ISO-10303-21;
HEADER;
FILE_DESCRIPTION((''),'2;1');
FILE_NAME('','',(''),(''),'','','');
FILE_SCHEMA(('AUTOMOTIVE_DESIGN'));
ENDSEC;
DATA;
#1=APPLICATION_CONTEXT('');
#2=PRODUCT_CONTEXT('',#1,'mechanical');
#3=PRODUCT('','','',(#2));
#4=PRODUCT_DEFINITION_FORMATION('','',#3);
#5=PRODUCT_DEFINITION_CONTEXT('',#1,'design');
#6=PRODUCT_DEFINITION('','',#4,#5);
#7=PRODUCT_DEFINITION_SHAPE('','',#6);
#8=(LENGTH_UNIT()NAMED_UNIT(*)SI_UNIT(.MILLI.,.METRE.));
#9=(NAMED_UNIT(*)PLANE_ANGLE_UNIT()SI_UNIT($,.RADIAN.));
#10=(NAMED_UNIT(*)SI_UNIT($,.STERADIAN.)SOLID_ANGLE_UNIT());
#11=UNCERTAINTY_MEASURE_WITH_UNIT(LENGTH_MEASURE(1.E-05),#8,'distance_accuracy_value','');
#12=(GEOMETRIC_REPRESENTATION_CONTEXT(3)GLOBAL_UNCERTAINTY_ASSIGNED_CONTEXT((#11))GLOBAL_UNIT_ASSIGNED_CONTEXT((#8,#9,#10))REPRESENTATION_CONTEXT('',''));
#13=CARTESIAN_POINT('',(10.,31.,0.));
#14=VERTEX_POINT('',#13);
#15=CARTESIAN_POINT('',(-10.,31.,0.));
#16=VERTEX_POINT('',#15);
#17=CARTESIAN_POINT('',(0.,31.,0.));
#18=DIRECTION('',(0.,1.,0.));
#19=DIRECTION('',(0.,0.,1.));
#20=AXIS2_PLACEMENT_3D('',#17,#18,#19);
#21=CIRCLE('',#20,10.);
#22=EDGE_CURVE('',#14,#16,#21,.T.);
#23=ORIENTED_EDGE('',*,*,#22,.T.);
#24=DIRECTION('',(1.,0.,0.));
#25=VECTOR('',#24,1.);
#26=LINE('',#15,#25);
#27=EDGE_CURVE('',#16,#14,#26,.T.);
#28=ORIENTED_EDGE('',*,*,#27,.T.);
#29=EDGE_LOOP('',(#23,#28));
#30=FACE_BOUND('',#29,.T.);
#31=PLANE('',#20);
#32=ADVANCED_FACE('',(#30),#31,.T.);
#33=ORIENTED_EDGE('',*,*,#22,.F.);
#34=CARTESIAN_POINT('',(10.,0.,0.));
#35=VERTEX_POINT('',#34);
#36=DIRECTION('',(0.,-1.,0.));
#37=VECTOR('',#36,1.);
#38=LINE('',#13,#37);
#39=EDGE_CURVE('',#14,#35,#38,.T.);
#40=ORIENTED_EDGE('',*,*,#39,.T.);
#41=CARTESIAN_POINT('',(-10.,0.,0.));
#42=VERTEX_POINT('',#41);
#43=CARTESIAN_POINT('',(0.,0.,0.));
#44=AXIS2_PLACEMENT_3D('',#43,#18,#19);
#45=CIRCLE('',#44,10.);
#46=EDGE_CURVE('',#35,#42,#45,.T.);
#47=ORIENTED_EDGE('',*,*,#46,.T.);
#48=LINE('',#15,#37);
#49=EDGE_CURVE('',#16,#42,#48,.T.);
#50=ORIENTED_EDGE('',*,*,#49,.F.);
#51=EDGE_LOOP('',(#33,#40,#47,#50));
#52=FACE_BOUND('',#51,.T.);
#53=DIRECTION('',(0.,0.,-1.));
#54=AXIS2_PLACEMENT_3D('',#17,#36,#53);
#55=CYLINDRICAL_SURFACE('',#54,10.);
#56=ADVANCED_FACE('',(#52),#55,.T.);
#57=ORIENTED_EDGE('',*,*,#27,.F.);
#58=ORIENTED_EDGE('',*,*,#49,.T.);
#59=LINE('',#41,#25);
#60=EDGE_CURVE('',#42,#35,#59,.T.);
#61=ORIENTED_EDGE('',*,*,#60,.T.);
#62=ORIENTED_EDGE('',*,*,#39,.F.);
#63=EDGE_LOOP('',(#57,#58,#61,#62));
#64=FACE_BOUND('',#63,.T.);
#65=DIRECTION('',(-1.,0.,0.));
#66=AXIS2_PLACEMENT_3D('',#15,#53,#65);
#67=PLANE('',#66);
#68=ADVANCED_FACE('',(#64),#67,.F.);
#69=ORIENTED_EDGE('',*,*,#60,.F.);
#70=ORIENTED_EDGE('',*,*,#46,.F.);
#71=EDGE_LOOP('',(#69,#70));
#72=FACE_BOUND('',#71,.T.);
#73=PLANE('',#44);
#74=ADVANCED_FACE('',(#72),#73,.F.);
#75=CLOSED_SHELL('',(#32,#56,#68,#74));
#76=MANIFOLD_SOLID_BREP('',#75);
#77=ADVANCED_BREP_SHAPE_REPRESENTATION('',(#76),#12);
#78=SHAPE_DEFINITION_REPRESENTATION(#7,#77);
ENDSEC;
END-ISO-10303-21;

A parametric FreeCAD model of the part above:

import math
import FreeCAD as App
import Part
import Sketcher
Q = App.Units.Quantity

doc = App.newDocument("Part")
params = doc.addObject("Spreadsheet::Sheet", "Params")
for row, (alias, value) in enumerate([
    ("sketch1_radius", "10 mm"),
    ("pad1_length", "31 mm"),
], start=1):
    params.set(f"A{row}", alias)
    params.set(f"B{row}", "=" + value)
    params.setAlias(f"B{row}", alias)

body = doc.addObject("PartDesign::Body", "Body")

sketch1 = body.newObject("Sketcher::SketchObject", "Sketch")
sketch1.AttachmentSupport = (doc.getObject("XZ_Plane"), [""])
sketch1.MapMode = "FlatFace"
sketch1.addGeometry(Part.LineSegment(App.Vector(-10, 0, 0), App.Vector(10, 0, 0)), False)
sketch1.addGeometry(Part.ArcOfCircle(Part.Circle(App.Vector(0, 0, 0), App.Vector(0, 0, 1), 10), math.radians(180), math.radians(360)), False)
sketch1.addConstraint(Sketcher.Constraint("Coincident", 0, 1, 1, 1))
sketch1.addConstraint(Sketcher.Constraint("Coincident", 1, 2, 0, 2))
sketch1.addConstraint(Sketcher.Constraint("Horizontal", 0))
sketch1.addConstraint(Sketcher.Constraint("Coincident", 1, 3, -1, 1))
sketch1.addConstraint(Sketcher.Constraint("PointOnObject", 0, 1, -1))
sketch1.addConstraint(Sketcher.Constraint("Radius", 1, Q("10 mm")))
sketch1.setExpression("Constraints[5]", "Params.sketch1_radius")
pad1 = body.newObject("PartDesign::Pad", "Pad")
pad1.Profile = sketch1
pad1.setExpression("Length", "Params.pad1_length")
pad1.Reversed = True

doc.recompute()
